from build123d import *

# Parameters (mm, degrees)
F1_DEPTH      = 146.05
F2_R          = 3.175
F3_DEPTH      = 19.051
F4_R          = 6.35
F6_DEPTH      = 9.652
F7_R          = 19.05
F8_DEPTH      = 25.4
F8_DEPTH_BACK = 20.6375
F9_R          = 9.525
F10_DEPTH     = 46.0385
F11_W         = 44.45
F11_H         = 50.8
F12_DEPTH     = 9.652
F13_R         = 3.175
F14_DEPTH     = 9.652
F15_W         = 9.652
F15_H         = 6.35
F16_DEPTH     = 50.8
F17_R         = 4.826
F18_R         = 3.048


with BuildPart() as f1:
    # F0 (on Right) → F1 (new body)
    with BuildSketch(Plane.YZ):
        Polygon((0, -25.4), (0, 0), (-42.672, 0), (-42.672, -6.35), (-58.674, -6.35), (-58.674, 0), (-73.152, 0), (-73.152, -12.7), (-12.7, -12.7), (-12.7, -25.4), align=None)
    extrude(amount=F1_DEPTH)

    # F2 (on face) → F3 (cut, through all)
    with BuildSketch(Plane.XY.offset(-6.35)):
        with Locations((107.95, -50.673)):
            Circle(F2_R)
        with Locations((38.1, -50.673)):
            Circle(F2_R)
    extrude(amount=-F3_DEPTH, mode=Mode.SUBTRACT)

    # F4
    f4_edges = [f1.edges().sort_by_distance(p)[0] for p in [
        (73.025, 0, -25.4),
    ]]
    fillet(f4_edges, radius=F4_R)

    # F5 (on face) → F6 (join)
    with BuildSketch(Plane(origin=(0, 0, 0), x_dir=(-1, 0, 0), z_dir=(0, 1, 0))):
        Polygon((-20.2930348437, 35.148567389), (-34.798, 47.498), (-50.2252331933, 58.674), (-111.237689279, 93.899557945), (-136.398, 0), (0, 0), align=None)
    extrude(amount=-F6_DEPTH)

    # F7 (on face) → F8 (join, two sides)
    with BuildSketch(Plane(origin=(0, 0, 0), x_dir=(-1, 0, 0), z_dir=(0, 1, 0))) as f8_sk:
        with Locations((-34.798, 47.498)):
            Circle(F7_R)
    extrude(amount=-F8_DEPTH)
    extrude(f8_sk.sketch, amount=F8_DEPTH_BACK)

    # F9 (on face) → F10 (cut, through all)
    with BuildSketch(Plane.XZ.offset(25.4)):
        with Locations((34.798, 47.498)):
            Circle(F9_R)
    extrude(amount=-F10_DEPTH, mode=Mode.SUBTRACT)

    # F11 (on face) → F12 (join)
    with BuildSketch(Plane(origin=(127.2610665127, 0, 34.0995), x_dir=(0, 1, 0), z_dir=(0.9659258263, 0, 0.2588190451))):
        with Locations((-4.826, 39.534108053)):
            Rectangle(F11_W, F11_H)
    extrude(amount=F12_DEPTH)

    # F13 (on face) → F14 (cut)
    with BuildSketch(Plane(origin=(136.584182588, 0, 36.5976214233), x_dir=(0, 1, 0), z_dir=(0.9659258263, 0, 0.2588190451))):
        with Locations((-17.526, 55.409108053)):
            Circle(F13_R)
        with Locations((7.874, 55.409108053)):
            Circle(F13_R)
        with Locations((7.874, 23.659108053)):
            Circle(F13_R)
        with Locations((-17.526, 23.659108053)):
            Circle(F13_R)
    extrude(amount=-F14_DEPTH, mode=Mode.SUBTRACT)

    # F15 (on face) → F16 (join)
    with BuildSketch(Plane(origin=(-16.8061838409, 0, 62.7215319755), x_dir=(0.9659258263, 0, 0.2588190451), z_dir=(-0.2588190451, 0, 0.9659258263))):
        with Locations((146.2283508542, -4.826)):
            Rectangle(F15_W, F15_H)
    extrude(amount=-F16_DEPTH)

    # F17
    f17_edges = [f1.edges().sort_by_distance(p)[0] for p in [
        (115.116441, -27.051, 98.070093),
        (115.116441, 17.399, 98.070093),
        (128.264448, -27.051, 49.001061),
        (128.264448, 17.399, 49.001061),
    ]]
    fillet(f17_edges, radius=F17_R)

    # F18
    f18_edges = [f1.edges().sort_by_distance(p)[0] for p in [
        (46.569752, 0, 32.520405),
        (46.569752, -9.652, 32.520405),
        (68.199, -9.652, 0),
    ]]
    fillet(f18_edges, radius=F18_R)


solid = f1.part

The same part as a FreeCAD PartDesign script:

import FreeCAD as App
import Part
import Sketcher
from FreeCAD import Vector
Q = App.Units.Quantity


def edges_at(feature, points):
    """Names of the edges that pass closest to the given points."""
    edges = feature.Shape.Edges
    near = lambda p: min(range(len(edges)), key=lambda i: edges[i].distToShape(Part.Vertex(*p))[0])
    return sorted({f"Edge{near(p) + 1}" for p in points})

doc = App.newDocument("Part")
body = doc.addObject("PartDesign::Body", "Body")

sketch1 = body.newObject("Sketcher::SketchObject", "Sketch")
sketch1.AttachmentSupport = (doc.getObject("YZ_Plane"), [""])
sketch1.MapMode = "FlatFace"
sketch1.addGeometry([
    Part.LineSegment(Vector(0, -25, 0), Vector(0, 0, 0)),
    Part.LineSegment(Vector(0, 0, 0), Vector(-43, 0, 0)),
    Part.LineSegment(Vector(-43, 0, 0), Vector(-43, -6, 0)),
    Part.LineSegment(Vector(-43, -6, 0), Vector(-59, -6, 0)),
    Part.LineSegment(Vector(-59, -6, 0), Vector(-59, 0, 0)),
    Part.LineSegment(Vector(-59, 0, 0), Vector(-73, 0, 0)),
    Part.LineSegment(Vector(-73, 0, 0), Vector(-73, -13, 0)),
    Part.LineSegment(Vector(-73, -13, 0), Vector(-13, -13, 0)),
    Part.LineSegment(Vector(-13, -13, 0), Vector(-13, -25, 0)),
    Part.LineSegment(Vector(-13, -25, 0), Vector(0, -25, 0)),
], False)
sketch1.addConstraint([
    Sketcher.Constraint("Coincident", 0, 2, 1, 1),
    Sketcher.Constraint("Coincident", 1, 2, 2, 1),
    Sketcher.Constraint("Coincident", 2, 2, 3, 1),
    Sketcher.Constraint("Coincident", 3, 2, 4, 1),
    Sketcher.Constraint("Coincident", 4, 2, 5, 1),
    Sketcher.Constraint("Coincident", 5, 2, 6, 1),
    Sketcher.Constraint("Coincident", 6, 2, 7, 1),
    Sketcher.Constraint("Coincident", 7, 2, 8, 1),
    Sketcher.Constraint("Coincident", 8, 2, 9, 1),
    Sketcher.Constraint("Coincident", 9, 2, 0, 1),
    Sketcher.Constraint("Vertical", 0),
    Sketcher.Constraint("Horizontal", 1),
    Sketcher.Constraint("Vertical", 2),
    Sketcher.Constraint("Horizontal", 3),
    Sketcher.Constraint("Vertical", 4),
    Sketcher.Constraint("Horizontal", 5),
    Sketcher.Constraint("Vertical", 6),
    Sketcher.Constraint("Horizontal", 7),
    Sketcher.Constraint("Vertical", 8),
    Sketcher.Constraint("Horizontal", 9),
    Sketcher.Constraint("Coincident", 0, 2, -1, 1),
    Sketcher.Constraint("PointOnObject", 4, 2, -1),
    Sketcher.Constraint("Equal", 9, 6),
    Sketcher.Constraint("Equal", 6, 8),
    Sketcher.Constraint("DistanceY", 0, 1, 0, 2, Q("1 in")),
    Sketcher.Constraint("DistanceX", 1, 2, 1, 1, Q("1.68 in")),
    Sketcher.Constraint("DistanceX", 3, 2, 3, 1, Q("0.63 in")),
    Sketcher.Constraint("DistanceX", 5, 2, 5, 1, Q("0.57 in")),
    Sketcher.Constraint("DistanceY", 2, 2, 2, 1, Q("0.25 in")),
])
pad1 = body.newObject("PartDesign::Pad", "Pad")
pad1.Profile = sketch1
pad1.Length = Q("5.75 in")

sketch2 = body.newObject("Sketcher::SketchObject", "Sketch001")
sketch2.AttachmentSupport = (doc.getObject("XY_Plane"), [""])
sketch2.MapMode = "FlatFace"
sketch2.AttachmentOffset = App.Placement(Vector(0, 0, -0.25 * 25.4), App.Rotation())
sketch2.addGeometry([
    Part.Circle(Vector(108, -50.7, 0), Vector(0, 0, 1), 3.2),
    Part.Circle(Vector(38.1, -50.7, 0), Vector(0, 0, 1), 3.2),
], False)
sketch2.addConstraint([
    Sketcher.Constraint("Equal", 0, 1),
    Sketcher.Constraint("Horizontal", 0, 3, 1, 3),
    Sketcher.Constraint("Diameter", 0, Q("0.25 in")),
    Sketcher.Constraint("DistanceX", -1, 1, 1, 3, Q("1.5 in")),
    Sketcher.Constraint("DistanceX", -1, 1, 0, 3, Q("4.25 in")),
    Sketcher.Constraint("DistanceY", 0, 3, -1, 1, Q("1.995 in")),
])
pocket1 = body.newObject("PartDesign::Pocket", "Pocket")
pocket1.Profile = sketch2
pocket1.Type = "ThroughAll"
doc.recompute()

fillet = body.newObject("PartDesign::Fillet", "Fillet")
fillet.Base = (pocket1, edges_at(pocket1, [(73.025, 0, -25.4)]))
fillet.Radius = Q("0.25 in")

sketch3 = body.newObject("Sketcher::SketchObject", "Sketch002")
sketch3.AttachmentSupport = (doc.getObject("XZ_Plane"), [""])
sketch3.MapMode = "FlatFace"
sketch3.addGeometry([
    Part.LineSegment(Vector(20, 35, 0), Vector(35, 47, 0)),
    Part.LineSegment(Vector(35, 47, 0), Vector(50, 59, 0)),
    Part.LineSegment(Vector(50, 59, 0), Vector(111, 94, 0)),
    Part.LineSegment(Vector(111, 94, 0), Vector(136, 0, 0)),
    Part.LineSegment(Vector(136, 0, 0), Vector(0, 0, 0)),
    Part.LineSegment(Vector(0, 0, 0), Vector(20, 35, 0)),
], False)
sketch3.addConstraint([
    Sketcher.Constraint("Coincident", 0, 2, 1, 1),
    Sketcher.Constraint("Coincident", 1, 2, 2, 1),
    Sketcher.Constraint("Coincident", 2, 2, 3, 1),
    Sketcher.Constraint("Coincident", 3, 2, 4, 1),
    Sketcher.Constraint("Coincident", 4, 2, 5, 1),
    Sketcher.Constraint("Coincident", 5, 2, 0, 1),
    Sketcher.Constraint("Horizontal", 4),
    Sketcher.Constraint("Coincident", 4, 2, -1, 1),
    Sketcher.Constraint("Equal", 0, 1),
    Sketcher.Constraint("Angle", 2, Q("30 deg")),
    Sketcher.Constraint("Angle", 3, Q("-75 deg")),
    Sketcher.Constraint("Angle", 5, Q("60 deg")),
    Sketcher.Constraint("DistanceX", 0, 2, 3, 2, Q("4 in")),
    Sketcher.Constraint("DistanceX", 4, 2, 4, 1, Q("5.37 in")),
    Sketcher.Constraint("Distance", 0, Q("0.75 in")),
    Sketcher.Constraint("DistanceY", -1, 1, 0, 2, Q("1.87 in")),
    Sketcher.Constraint("DistanceY", -1, 1, 1, 2, Q("2.31 in")),
])
pad2 = body.newObject("PartDesign::Pad", "Pad001")
pad2.Profile = sketch3
pad2.Length = Q("0.38 in")

sketch4 = body.newObject("Sketcher::SketchObject", "Sketch003")
sketch4.AttachmentSupport = (doc.getObject("XZ_Plane"), [""])
sketch4.MapMode = "FlatFace"
sketch4.addGeometry(Part.Circle(Vector(35, 47, 0), Vector(0, 0, 1), 19), False)
sketch4.addConstraint([
    Sketcher.Constraint("Diameter", 0, Q("1.5 in")),
    Sketcher.Constraint("DistanceX", -1, 1, 0, 3, Q("1.37 in")),
    Sketcher.Constraint("DistanceY", -1, 1, 0, 3, Q("1.87 in")),
])
pad3 = body.newObject("PartDesign::Pad", "Pad002")
pad3.Profile = sketch4
pad3.Type = "TwoLengths"
pad3.Length = Q("1 in")
pad3.Length2 = Q("0.8125 in")

sketch5 = body.newObject("Sketcher::SketchObject", "Sketch004")
sketch5.AttachmentSupport = (doc.getObject("XZ_Plane"), [""])
sketch5.MapMode = "FlatFace"
sketch5.AttachmentOffset = App.Placement(Vector(0, 0, 1 * 25.4), App.Rotation())
sketch5.addGeometry(Part.Circle(Vector(35, 47, 0), Vector(0, 0, 1), 10), False)
sketch5.addConstraint([
    Sketcher.Constraint("Diameter", 0, Q("0.75 in")),
    Sketcher.Constraint("DistanceX", -1, 1, 0, 3, Q("1.37 in")),
    Sketcher.Constraint("DistanceY", -1, 1, 0, 3, Q("1.87 in")),
])
pocket2 = body.newObject("PartDesign::Pocket", "Pocket001")
pocket2.Profile = sketch5
pocket2.Type = "ThroughAll"

sketch6 = body.newObject("Sketcher::SketchObject", "Sketch005")
sketch6.Placement = App.Placement(Vector(127.261067, 0, 34.0995), App.Rotation(Vector(0, 1, 0), Vector(-0.258819045, 0, 0.965925826), Vector(0.965925826, 0, 0.258819045), "ZXY"))
sketch6.addGeometry([
    Part.LineSegment(Vector(-27, 65, 0), Vector(-27, 14, 0)),
    Part.LineSegment(Vector(-27, 14, 0), Vector(17, 14, 0)),
    Part.LineSegment(Vector(17, 14, 0), Vector(17, 65, 0)),
    Part.LineSegment(Vector(17, 65, 0), Vector(-27, 65, 0)),
], False)
sketch6.addConstraint([
    Sketcher.Constraint("Coincident", 0, 2, 1, 1),
    Sketcher.Constraint("Coincident", 1, 2, 2, 1),
    Sketcher.Constraint("Coincident", 2, 2, 3, 1),
    Sketcher.Constraint("Coincident", 3, 2, 0, 1),
    Sketcher.Constraint("Vertical", 0),
    Sketcher.Constraint("Horizontal", 1),
    Sketcher.Constraint("Vertical", 2),
    Sketcher.Constraint("Horizontal", 3),
    Sketcher.Constraint("DistanceY", 0, 2, 0, 1, Q("2 in")),
    Sketcher.Constraint("DistanceX", 1, 1, 1, 2, Q("1.75 in")),
    Sketcher.Constraint("DistanceX", 0, 2, -1, 1, Q("1.065 in")),
    Sketcher.Constraint("DistanceY", -1, 1, 0, 2, 14.134108),
])
pad4 = body.newObject("PartDesign::Pad", "Pad003")
pad4.Profile = sketch6
pad4.Length = Q("0.38 in")

sketch7 = body.newObject("Sketcher::SketchObject", "Sketch006")
sketch7.Placement = App.Placement(Vector(136.584183, 0, 36.597621), App.Rotation(Vector(0, 1, 0), Vector(-0.258819045, 0, 0.965925826), Vector(0.965925826, 0, 0.258819045), "ZXY"))
sketch7.addGeometry([
    Part.Circle(Vector(-17.5, 55.4, 0), Vector(0, 0, 1), 3.2),
    Part.Circle(Vector(7.9, 55.4, 0), Vector(0, 0, 1), 3.2),
    Part.Circle(Vector(7.9, 23.7, 0), Vector(0, 0, 1), 3.2),
    Part.Circle(Vector(-17.5, 23.7, 0), Vector(0, 0, 1), 3.2),
], False)
sketch7.addConstraint([
    Sketcher.Constraint("Equal", 0, 1),
    Sketcher.Constraint("Equal", 1, 2),
    Sketcher.Constraint("Equal", 2, 3),
    Sketcher.Constraint("Horizontal", 0, 3, 1, 3),
    Sketcher.Constraint("Horizontal", 2, 3, 3, 3),
    Sketcher.Constraint("Vertical", 1, 3, 2, 3),
    Sketcher.Constraint("Vertical", 0, 3, 3, 3),
    Sketcher.Constraint("Diameter", 0, Q("0.25 in")),
    Sketcher.Constraint("DistanceX", 0, 3, 1, 3, Q("1 in")),
    Sketcher.Constraint("DistanceX", 0, 3, -1, 1, Q("0.69 in")),
    Sketcher.Constraint("DistanceY", 2, 3, 1, 3, Q("1.25 in")),
    Sketcher.Constraint("DistanceY", -1, 1, 0, 3, 55.409108),
])
pocket3 = body.newObject("PartDesign::Pocket", "Pocket002")
pocket3.Profile = sketch7
pocket3.Length = Q("0.38 in")

sketch8 = body.newObject("Sketcher::SketchObject", "Sketch007")
sketch8.Placement = App.Placement(Vector(-16.806184, 0, 62.721532), App.Rotation(Vector(0.965925826, 0, 0.258819045), Vector(0, 0.999999999, 0), Vector(-0.258819045, 0, 0.965925826), "ZXY"))
sketch8.addGeometry([
    Part.LineSegment(Vector(141, -2, 0), Vector(141, -8, 0)),
    Part.LineSegment(Vector(141, -8, 0), Vector(151, -8, 0)),
    Part.LineSegment(Vector(151, -8, 0), Vector(151, -2, 0)),
    Part.LineSegment(Vector(151, -2, 0), Vector(141, -2, 0)),
], False)
sketch8.addConstraint([
    Sketcher.Constraint("Coincident", 0, 2, 1, 1),
    Sketcher.Constraint("Coincident", 1, 2, 2, 1),
    Sketcher.Constraint("Coincident", 2, 2, 3, 1),
    Sketcher.Constraint("Coincident", 3, 2, 0, 1),
    Sketcher.Constraint("Vertical", 0),
    Sketcher.Constraint("Horizontal", 1),
    Sketcher.Constraint("Vertical", 2),
    Sketcher.Constraint("Horizontal", 3),
    Sketcher.Constraint("DistanceX", 1, 1, 1, 2, Q("0.38 in")),
    Sketcher.Constraint("DistanceY", 0, 2, 0, 1, Q("0.25 in")),
    Sketcher.Constraint("DistanceY", 0, 2, -1, 1, Q("0.315 in")),
    Sketcher.Constraint("DistanceX", -1, 1, 0, 2, 141.402351),
])
pad5 = body.newObject("PartDesign::Pad", "Pad004")
pad5.Profile = sketch8
pad5.Length = Q("2 in")
pad5.Reversed = True
doc.recompute()

fillet2 = body.newObject("PartDesign::Fillet", "Fillet001")
fillet2.Base = (pad5, edges_at(pad5, [
    (115.116, -27.051, 98.07),
    (115.116, 17.399, 98.07),
    (128.264, -27.051, 49.001),
    (128.264, 17.399, 49.001),
]))
fillet2.Radius = Q("0.19 in")
doc.recompute()

fillet3 = body.newObject("PartDesign::Fillet", "Fillet002")
fillet3.Base = (fillet2, edges_at(fillet2, [(46.57, 0, 32.52), (46.57, -9.652, 32.52), (68.199, -9.652, 0)]))
fillet3.Radius = Q("0.12 in")

doc.recompute()
